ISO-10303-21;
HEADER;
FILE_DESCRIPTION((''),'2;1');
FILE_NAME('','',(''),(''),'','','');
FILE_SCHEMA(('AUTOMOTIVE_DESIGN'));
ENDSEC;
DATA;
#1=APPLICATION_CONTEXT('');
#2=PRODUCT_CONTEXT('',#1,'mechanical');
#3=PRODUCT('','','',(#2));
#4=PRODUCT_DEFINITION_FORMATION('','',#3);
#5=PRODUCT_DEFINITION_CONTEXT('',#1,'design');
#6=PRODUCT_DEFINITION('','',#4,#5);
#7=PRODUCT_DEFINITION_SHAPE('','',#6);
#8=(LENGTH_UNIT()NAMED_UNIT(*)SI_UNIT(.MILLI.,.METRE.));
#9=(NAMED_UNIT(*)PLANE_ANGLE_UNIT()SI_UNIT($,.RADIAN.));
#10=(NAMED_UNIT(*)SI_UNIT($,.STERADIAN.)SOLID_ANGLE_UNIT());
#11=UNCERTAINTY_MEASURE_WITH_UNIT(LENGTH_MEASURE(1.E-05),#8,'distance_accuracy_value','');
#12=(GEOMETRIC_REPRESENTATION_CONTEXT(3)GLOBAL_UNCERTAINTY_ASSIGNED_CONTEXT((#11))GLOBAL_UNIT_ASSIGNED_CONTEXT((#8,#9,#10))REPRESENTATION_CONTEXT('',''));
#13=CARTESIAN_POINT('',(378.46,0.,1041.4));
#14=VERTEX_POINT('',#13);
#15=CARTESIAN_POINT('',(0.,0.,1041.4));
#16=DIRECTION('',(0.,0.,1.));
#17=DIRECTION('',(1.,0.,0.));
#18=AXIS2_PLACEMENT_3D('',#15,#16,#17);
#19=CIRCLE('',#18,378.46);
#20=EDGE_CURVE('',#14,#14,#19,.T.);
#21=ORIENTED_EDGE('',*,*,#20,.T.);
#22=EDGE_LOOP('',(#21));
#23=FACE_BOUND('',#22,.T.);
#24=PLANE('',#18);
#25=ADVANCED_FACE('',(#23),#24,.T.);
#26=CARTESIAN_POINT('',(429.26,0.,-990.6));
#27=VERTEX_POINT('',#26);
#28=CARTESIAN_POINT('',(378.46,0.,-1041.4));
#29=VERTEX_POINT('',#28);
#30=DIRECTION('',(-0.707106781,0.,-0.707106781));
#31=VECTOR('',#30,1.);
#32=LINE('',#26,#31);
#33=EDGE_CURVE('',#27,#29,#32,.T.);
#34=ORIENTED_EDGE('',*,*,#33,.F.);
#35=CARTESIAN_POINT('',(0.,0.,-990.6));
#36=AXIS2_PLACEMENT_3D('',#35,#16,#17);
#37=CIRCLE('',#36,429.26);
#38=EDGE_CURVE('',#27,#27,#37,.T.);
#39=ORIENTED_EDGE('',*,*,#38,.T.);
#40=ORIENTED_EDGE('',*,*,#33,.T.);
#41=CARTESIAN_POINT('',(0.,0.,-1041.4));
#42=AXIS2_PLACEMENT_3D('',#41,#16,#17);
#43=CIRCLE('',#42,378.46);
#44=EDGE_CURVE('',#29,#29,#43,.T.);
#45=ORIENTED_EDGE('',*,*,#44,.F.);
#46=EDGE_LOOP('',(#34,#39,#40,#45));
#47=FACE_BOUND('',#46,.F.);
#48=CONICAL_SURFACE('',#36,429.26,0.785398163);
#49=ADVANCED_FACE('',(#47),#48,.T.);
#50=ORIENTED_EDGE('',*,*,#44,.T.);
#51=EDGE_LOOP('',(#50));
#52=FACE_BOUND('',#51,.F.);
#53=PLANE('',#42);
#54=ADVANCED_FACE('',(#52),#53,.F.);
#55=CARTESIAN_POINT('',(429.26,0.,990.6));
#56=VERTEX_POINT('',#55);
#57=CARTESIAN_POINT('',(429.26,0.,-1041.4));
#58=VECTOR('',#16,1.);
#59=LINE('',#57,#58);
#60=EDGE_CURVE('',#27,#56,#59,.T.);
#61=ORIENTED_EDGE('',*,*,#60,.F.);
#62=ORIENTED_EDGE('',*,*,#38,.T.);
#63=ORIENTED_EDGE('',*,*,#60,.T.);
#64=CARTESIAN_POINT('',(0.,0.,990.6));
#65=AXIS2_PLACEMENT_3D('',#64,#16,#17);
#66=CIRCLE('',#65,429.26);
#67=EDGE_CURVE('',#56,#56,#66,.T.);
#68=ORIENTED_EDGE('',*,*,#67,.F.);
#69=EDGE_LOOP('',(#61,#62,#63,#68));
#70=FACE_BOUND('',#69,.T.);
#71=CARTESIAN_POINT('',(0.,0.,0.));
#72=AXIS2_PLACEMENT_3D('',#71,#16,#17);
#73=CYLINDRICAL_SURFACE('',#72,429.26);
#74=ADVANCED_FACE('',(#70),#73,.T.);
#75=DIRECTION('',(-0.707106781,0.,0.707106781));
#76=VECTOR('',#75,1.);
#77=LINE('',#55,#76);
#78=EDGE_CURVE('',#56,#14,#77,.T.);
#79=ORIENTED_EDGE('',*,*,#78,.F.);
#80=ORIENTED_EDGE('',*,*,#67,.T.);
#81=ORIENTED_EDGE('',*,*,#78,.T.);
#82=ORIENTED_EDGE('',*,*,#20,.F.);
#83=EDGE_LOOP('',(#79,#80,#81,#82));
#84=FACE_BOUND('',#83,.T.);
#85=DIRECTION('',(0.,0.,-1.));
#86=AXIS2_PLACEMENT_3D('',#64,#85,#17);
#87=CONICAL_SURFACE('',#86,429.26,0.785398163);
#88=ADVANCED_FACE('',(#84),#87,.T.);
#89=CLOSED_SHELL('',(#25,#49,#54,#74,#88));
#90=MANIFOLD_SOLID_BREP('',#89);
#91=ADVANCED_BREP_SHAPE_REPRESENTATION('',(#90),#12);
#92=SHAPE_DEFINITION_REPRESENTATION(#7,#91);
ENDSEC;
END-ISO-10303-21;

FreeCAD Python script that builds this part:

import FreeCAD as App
import Part
import Sketcher
from FreeCAD import Vector
Q = App.Units.Quantity


def edges_at(feature, points):
    """Names of the edges that pass closest to the given points."""
    edges = feature.Shape.Edges
    near = lambda p: min(range(len(edges)), key=lambda i: edges[i].distToShape(Part.Vertex(*p))[0])
    return sorted({f"Edge{near(p) + 1}" for p in points})

doc = App.newDocument("Part")
params = doc.addObject("Spreadsheet::Sheet", "Params")
for row, (alias, value) in enumerate([
    ("sketch1_diameter", "33.8 in"),
    ("pad1_length", "82 in"),
    ("chamfer_size", "2 in"),
], start=1):
    params.set(f"A{row}", alias)
    params.set(f"B{row}", "=" + value)
    params.setAlias(f"B{row}", alias)

body = doc.addObject("PartDesign::Body", "Body")

sketch1 = body.newObject("Sketcher::SketchObject", "Sketch")
sketch1.AttachmentSupport = (doc.getObject("XY_Plane"), [""])
sketch1.MapMode = "FlatFace"
sketch1.addGeometry(Part.Circle(Vector(0, 0, 0), Vector(0, 0, 1), 429), False)
sketch1.addConstraint([
    Sketcher.Constraint("Coincident", 0, 3, -1, 1),
    Sketcher.Constraint("Diameter", 0, Q("33.8 in")),
])
sketch1.setExpression("Constraints[1]", "Params.sketch1_diameter")
pad1 = body.newObject("PartDesign::Pad", "Pad")
pad1.Profile = sketch1
pad1.setExpression("Length", "Params.pad1_length")
pad1.Midplane = True
doc.recompute()

chamfer = body.newObject("PartDesign::Chamfer", "Chamfer")
chamfer.Base = (pad1, edges_at(pad1, [(-429.26, 0, -1041.4), (-429.26, 0, 1041.4)]))
chamfer.setExpression("Size", "Params.chamfer_size")

doc.recompute()
